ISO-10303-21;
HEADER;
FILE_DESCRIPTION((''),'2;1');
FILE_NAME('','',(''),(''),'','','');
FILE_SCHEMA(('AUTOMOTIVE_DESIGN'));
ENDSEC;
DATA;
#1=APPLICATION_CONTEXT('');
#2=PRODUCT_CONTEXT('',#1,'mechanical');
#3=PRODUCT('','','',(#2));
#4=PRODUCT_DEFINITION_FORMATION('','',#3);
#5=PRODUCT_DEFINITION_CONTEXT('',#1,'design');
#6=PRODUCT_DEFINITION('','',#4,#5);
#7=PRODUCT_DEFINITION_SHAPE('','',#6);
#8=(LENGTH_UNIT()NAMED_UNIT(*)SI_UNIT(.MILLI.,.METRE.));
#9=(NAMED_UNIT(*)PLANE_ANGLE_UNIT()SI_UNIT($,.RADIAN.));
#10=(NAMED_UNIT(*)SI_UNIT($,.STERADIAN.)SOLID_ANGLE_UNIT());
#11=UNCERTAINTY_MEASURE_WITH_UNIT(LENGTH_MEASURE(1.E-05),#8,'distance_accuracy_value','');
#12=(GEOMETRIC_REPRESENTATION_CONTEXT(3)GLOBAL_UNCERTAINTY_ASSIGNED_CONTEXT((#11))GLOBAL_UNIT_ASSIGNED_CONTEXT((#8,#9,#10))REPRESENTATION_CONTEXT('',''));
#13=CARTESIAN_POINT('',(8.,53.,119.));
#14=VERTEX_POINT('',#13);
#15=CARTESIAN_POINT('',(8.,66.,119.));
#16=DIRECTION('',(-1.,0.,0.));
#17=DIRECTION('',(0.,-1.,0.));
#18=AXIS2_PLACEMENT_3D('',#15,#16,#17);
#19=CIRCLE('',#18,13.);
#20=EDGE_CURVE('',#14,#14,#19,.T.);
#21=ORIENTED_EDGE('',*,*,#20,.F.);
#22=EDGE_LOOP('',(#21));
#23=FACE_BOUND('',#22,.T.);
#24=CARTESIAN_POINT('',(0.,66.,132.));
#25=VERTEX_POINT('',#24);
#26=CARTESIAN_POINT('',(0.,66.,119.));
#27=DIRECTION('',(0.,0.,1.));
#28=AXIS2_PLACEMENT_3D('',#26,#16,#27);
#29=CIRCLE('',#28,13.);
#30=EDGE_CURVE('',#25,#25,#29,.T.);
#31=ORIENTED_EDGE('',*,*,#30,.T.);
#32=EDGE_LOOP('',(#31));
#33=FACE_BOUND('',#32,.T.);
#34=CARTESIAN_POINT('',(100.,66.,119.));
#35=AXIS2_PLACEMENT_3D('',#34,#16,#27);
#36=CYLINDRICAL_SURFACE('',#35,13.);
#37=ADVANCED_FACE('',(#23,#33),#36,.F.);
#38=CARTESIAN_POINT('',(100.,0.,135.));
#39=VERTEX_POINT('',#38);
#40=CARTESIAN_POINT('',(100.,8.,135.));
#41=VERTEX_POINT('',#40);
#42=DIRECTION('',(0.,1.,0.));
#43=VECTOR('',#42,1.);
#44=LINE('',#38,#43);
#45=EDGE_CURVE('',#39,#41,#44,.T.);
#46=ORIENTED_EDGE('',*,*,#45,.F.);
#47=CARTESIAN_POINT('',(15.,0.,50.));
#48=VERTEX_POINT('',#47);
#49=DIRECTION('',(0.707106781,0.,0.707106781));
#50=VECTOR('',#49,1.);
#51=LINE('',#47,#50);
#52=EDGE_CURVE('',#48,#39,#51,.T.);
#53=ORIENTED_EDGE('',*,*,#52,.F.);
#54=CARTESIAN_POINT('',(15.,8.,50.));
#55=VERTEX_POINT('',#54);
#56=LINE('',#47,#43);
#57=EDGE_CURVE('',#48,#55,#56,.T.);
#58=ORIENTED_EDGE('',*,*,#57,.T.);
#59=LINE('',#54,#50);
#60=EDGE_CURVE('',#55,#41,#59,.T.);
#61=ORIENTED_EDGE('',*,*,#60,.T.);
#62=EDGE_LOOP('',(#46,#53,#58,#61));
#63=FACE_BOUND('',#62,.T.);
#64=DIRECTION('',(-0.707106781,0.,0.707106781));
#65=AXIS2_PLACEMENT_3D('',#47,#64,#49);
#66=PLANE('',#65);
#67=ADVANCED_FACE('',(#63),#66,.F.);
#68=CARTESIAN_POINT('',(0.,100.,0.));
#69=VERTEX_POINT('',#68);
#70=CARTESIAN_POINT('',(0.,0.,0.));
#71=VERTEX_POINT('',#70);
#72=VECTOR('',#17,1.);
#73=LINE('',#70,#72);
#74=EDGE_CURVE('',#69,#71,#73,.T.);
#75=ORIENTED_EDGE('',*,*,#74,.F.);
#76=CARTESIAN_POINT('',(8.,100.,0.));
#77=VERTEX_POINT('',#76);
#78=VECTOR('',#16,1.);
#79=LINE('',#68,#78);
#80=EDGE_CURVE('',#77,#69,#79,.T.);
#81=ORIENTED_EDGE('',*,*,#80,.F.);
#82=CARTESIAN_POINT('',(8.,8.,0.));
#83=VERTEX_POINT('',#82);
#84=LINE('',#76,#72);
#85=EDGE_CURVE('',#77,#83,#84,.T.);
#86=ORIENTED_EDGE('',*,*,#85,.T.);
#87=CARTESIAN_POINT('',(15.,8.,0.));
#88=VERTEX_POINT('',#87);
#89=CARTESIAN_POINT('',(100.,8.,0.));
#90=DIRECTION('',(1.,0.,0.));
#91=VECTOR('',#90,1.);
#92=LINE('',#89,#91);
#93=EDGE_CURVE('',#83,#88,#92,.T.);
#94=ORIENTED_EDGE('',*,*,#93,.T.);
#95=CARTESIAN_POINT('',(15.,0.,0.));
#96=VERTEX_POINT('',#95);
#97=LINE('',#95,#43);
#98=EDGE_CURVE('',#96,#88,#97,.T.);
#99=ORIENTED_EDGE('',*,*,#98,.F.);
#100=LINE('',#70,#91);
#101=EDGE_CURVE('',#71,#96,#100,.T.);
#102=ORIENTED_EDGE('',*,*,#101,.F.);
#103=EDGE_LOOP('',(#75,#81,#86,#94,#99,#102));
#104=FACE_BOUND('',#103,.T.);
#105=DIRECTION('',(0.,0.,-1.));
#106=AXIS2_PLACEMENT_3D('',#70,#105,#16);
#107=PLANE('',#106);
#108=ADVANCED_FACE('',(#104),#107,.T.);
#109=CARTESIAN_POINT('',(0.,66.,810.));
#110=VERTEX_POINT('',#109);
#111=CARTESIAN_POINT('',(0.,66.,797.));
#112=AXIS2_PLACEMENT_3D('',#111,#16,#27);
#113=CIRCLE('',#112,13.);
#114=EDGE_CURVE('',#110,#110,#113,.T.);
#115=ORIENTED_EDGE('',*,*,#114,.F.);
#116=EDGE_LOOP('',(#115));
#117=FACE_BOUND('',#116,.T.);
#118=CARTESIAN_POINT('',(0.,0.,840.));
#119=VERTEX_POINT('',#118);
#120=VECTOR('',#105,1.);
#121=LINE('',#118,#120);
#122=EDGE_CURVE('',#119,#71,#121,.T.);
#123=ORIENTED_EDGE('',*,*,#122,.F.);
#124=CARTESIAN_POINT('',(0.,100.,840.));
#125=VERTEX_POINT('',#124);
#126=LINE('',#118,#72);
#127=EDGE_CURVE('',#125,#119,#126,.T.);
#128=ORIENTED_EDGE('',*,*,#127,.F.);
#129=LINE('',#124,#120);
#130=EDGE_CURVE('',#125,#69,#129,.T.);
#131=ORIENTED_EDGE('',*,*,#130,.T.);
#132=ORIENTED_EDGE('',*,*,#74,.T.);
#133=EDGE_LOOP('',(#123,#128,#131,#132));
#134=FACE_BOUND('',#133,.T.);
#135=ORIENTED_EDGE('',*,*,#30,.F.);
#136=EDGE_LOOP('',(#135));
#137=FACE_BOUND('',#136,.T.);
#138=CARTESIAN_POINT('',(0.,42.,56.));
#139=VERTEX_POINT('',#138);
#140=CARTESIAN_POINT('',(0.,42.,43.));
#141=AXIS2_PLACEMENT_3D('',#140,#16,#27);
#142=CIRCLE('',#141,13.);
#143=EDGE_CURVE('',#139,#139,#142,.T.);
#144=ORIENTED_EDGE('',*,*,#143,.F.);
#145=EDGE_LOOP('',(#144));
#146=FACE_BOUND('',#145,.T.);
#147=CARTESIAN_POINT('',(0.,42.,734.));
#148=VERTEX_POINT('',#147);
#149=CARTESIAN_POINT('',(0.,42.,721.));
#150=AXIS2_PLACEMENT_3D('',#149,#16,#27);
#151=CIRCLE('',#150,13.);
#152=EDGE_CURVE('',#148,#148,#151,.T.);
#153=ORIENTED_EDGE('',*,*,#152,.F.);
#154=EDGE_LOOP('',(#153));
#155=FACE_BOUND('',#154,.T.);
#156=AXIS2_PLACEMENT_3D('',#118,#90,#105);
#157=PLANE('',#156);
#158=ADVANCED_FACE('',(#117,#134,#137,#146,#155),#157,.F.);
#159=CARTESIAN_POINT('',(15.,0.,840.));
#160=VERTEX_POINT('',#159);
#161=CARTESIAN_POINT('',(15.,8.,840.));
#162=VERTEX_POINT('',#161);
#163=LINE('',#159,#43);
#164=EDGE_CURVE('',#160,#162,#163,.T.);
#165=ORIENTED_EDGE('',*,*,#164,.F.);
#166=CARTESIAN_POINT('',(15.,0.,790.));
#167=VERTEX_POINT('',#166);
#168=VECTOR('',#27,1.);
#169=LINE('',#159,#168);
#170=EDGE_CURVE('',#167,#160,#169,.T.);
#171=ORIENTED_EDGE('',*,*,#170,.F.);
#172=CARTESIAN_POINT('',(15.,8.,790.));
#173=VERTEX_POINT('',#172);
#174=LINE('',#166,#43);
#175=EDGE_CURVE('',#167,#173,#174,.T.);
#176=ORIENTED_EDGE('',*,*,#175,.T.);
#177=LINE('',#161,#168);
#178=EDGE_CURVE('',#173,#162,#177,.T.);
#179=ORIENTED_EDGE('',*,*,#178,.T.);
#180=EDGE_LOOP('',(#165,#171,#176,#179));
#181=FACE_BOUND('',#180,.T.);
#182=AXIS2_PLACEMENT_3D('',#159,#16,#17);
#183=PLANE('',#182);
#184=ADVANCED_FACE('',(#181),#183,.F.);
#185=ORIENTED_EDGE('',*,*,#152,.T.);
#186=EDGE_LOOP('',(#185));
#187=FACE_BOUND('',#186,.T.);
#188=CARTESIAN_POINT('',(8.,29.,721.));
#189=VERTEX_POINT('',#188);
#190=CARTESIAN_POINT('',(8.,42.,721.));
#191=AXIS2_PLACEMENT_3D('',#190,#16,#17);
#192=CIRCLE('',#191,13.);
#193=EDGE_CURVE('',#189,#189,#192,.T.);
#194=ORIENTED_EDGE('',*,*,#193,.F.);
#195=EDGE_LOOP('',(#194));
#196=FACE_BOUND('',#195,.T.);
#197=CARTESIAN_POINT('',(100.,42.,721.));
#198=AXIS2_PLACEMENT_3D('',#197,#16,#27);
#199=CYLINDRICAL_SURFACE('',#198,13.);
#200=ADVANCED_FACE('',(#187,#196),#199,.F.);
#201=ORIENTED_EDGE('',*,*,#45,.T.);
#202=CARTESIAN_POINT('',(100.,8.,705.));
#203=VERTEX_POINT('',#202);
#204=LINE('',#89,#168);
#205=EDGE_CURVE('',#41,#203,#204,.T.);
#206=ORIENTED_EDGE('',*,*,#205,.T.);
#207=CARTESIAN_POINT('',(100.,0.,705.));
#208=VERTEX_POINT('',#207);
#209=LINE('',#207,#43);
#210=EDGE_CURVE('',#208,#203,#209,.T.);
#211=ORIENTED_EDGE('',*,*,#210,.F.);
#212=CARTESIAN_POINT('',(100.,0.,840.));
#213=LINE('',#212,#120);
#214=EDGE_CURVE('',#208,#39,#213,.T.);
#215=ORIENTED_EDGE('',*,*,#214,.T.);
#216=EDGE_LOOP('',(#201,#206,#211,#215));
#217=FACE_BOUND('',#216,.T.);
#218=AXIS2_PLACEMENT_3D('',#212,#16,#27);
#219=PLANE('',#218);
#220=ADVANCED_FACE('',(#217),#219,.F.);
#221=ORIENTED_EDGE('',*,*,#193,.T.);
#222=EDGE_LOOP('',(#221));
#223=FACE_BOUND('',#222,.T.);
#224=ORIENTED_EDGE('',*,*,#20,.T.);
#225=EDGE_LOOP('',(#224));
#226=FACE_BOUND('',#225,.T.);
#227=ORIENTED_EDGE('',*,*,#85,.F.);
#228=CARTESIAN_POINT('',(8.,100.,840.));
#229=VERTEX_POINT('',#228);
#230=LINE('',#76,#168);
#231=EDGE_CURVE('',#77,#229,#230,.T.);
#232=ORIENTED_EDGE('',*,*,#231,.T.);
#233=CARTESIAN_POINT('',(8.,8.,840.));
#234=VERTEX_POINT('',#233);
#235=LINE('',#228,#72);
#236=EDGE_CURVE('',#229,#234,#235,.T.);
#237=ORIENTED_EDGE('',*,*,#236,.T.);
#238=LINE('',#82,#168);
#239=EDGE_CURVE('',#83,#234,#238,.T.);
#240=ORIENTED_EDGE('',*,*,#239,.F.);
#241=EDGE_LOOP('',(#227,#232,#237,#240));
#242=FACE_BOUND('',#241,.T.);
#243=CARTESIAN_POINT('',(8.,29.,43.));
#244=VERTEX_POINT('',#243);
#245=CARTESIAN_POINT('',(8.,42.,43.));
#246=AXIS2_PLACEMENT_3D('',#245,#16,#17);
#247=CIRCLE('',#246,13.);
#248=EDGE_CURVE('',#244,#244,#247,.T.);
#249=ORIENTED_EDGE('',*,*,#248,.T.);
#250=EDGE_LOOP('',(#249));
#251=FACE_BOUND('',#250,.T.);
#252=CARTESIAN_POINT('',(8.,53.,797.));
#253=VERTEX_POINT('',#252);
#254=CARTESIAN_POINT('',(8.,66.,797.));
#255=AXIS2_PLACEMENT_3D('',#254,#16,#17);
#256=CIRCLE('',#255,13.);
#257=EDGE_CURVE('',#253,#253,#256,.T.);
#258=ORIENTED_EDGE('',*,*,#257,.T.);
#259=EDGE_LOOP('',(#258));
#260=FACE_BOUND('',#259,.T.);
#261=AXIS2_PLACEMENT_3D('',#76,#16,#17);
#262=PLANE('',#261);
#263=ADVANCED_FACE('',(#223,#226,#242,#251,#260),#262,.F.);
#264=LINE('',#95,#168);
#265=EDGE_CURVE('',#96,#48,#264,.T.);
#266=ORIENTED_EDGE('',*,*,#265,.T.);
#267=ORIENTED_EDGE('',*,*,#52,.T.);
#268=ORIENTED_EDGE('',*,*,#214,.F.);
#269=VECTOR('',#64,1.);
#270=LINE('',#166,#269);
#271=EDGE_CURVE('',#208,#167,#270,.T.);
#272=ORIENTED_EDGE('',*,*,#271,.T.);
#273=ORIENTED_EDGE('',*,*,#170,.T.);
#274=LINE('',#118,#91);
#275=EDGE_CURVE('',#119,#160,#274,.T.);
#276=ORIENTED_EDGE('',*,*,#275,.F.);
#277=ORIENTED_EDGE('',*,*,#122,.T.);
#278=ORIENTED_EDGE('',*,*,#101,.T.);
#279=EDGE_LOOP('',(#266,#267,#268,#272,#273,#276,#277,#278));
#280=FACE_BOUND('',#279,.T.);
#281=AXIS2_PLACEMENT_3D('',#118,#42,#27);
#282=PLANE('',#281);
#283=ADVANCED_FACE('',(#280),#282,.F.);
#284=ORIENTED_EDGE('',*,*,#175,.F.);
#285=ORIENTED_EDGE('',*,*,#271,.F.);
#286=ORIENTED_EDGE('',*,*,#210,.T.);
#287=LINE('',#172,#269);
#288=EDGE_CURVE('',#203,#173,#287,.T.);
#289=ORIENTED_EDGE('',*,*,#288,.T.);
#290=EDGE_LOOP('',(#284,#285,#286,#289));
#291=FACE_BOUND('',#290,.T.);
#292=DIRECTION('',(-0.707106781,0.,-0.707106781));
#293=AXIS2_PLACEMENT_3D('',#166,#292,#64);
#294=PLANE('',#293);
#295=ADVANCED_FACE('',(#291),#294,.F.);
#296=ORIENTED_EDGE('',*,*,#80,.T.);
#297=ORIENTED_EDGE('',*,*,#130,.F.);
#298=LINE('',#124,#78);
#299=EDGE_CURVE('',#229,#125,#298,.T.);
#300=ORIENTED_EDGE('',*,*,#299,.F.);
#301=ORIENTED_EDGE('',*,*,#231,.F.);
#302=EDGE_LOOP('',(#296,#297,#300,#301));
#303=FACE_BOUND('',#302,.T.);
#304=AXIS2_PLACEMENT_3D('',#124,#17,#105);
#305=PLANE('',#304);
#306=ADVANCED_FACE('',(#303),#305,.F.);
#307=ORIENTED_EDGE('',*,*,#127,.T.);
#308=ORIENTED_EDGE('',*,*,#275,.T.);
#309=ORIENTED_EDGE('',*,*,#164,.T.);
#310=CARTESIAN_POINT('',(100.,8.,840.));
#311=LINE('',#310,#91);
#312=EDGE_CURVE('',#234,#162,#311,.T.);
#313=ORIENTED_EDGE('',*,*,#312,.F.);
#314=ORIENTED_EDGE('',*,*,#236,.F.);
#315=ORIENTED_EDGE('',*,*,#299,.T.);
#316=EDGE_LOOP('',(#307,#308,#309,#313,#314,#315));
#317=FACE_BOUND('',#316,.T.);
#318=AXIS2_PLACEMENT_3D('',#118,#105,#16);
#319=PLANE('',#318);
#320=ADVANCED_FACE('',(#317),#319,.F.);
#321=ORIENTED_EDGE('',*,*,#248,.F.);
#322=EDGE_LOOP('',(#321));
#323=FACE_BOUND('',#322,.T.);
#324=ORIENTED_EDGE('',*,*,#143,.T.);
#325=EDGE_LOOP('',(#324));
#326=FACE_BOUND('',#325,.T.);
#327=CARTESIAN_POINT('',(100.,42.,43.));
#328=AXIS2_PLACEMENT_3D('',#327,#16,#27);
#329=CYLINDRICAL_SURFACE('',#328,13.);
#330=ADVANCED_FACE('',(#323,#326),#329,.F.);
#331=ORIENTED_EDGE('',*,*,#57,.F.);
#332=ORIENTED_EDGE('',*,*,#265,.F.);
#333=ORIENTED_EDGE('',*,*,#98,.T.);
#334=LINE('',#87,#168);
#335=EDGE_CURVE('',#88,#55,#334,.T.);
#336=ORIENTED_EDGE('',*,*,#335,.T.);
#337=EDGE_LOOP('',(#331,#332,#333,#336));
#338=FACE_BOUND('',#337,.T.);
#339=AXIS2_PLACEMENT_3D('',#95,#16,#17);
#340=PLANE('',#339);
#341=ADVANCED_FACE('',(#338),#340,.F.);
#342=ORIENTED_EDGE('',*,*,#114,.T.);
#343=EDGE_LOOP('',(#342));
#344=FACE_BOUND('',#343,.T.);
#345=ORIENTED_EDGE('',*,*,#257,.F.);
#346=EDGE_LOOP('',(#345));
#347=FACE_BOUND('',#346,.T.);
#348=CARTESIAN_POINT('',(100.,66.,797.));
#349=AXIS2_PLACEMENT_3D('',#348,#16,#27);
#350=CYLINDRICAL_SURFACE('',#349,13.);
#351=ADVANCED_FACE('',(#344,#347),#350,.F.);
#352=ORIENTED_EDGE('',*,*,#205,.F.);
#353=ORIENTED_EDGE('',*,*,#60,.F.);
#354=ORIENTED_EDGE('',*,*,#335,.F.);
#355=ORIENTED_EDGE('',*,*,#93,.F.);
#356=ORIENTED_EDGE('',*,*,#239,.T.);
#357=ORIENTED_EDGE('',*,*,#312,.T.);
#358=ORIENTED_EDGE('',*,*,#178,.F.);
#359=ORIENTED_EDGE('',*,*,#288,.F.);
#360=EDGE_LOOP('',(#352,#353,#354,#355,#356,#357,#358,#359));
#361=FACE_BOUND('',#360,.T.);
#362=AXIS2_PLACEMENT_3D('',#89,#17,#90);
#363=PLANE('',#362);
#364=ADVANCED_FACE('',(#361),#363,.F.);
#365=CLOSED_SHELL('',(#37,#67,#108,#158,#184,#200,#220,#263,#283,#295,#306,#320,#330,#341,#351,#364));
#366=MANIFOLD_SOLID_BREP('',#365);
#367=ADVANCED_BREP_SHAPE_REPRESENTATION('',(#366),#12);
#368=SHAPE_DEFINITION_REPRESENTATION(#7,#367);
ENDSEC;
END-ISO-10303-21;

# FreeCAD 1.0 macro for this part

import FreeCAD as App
import Part
import Sketcher
from FreeCAD import Vector
Q = App.Units.Quantity

doc = App.newDocument("Part")
body = doc.addObject("PartDesign::Body", "Body")

# Sketch on XY plane
sketch1 = body.newObject("Sketcher::SketchObject", "Sketch")
sketch1.AttachmentSupport = (doc.getObject("XY_Plane"), [""])
sketch1.MapMode = "FlatFace"
sketch1.addGeometry(Part.LineSegment(Vector(0, 100, 0), Vector(0, 0, 0)), False)
sketch1.addGeometry(Part.LineSegment(Vector(0, 0, 0), Vector(100, 0, 0)), False)
sketch1.addGeometry(Part.LineSegment(Vector(100, 0, 0), Vector(100, 100, 0)), False)
sketch1.addGeometry(Part.LineSegment(Vector(100, 100, 0), Vector(0, 100, 0)), False)
sketch1.addConstraint(Sketcher.Constraint("Coincident", 0, 2, 1, 1))
sketch1.addConstraint(Sketcher.Constraint("Coincident", 1, 2, 2, 1))
sketch1.addConstraint(Sketcher.Constraint("Coincident", 2, 2, 3, 1))
sketch1.addConstraint(Sketcher.Constraint("Coincident", 3, 2, 0, 1))
sketch1.addConstraint(Sketcher.Constraint("Vertical", 0))
sketch1.addConstraint(Sketcher.Constraint("Horizontal", 1))
sketch1.addConstraint(Sketcher.Constraint("Vertical", 2))
sketch1.addConstraint(Sketcher.Constraint("Horizontal", 3))
sketch1.addConstraint(Sketcher.Constraint("Coincident", 0, 2, -1, 1))
sketch1.addConstraint(Sketcher.Constraint("Equal", 3, 0))
sketch1.addConstraint(Sketcher.Constraint("DistanceX", 1, 1, 1, 2, Q("100 mm")))
pad1 = body.newObject("PartDesign::Pad", "Pad")
pad1.Profile = sketch1
pad1.Length = 840

# Sketch on XY plane
sketch2 = body.newObject("Sketcher::SketchObject", "Sketch001")
sketch2.AttachmentSupport = (doc.getObject("XY_Plane"), [""])
sketch2.MapMode = "FlatFace"
sketch2.AttachmentOffset = App.Placement(Vector(0, 0, 840), App.Rotation())
sketch2.addGeometry(Part.LineSegment(Vector(8, 100, 0), Vector(8, 8, 0)), False)
sketch2.addGeometry(Part.LineSegment(Vector(8, 8, 0), Vector(100, 8, 0)), False)
sketch2.addGeometry(Part.LineSegment(Vector(100, 8, 0), Vector(100, 100, 0)), False)
sketch2.addGeometry(Part.LineSegment(Vector(100, 100, 0), Vector(8, 100, 0)), False)
sketch2.addConstraint(Sketcher.Constraint("Coincident", 0, 2, 1, 1))
sketch2.addConstraint(Sketcher.Constraint("Coincident", 1, 2, 2, 1))
sketch2.addConstraint(Sketcher.Constraint("Coincident", 2, 2, 3, 1))
sketch2.addConstraint(Sketcher.Constraint("Coincident", 3, 2, 0, 1))
sketch2.addConstraint(Sketcher.Constraint("Vertical", 0))
sketch2.addConstraint(Sketcher.Constraint("Horizontal", 1))
sketch2.addConstraint(Sketcher.Constraint("Vertical", 2))
sketch2.addConstraint(Sketcher.Constraint("Horizontal", 3))
sketch2.addConstraint(Sketcher.Constraint("Equal", 3, 0))
sketch2.addConstraint(Sketcher.Constraint("DistanceX", 1, 1, 1, 2, Q("92 mm")))
sketch2.addConstraint(Sketcher.Constraint("DistanceX", -1, 1, 0, 2, Q("8 mm")))
sketch2.addConstraint(Sketcher.Constraint("DistanceY", -1, 1, 0, 2, Q("8 mm")))
pocket1 = body.newObject("PartDesign::Pocket", "Pocket")
pocket1.Profile = sketch2
pocket1.Type = "ThroughAll"

# Sketch on YZ plane
sketch3 = body.newObject("Sketcher::SketchObject", "Sketch002")
sketch3.AttachmentSupport = (doc.getObject("YZ_Plane"), [""])
sketch3.MapMode = "FlatFace"
sketch3.addGeometry(Part.Circle(Vector(42, 43, 0), Vector(0, 0, 1), 13), False)
sketch3.addGeometry(Part.Circle(Vector(66, 119, 0), Vector(0, 0, 1), 13), False)
sketch3.addGeometry(Part.Circle(Vector(66, 797, 0), Vector(0, 0, 1), 13), False)
sketch3.addGeometry(Part.Circle(Vector(42, 721, 0), Vector(0, 0, 1), 13), False)
sketch3.addConstraint(Sketcher.Constraint("Equal", 0, 1))
sketch3.addConstraint(Sketcher.Constraint("Equal", 1, 2))
sketch3.addConstraint(Sketcher.Constraint("Equal", 2, 3))
sketch3.addConstraint(Sketcher.Constraint("Vertical", 1, 3, 2, 3))
sketch3.addConstraint(Sketcher.Constraint("Vertical", 0, 3, 3, 3))
sketch3.addConstraint(Sketcher.Constraint("Diameter", 0, Q("26 mm")))
sketch3.addConstraint(Sketcher.Constraint("DistanceX", -1, 1, 0, 3, Q("42 mm")))
sketch3.addConstraint(Sketcher.Constraint("DistanceY", -1, 1, 0, 3, Q("43 mm")))
sketch3.addConstraint(Sketcher.Constraint("DistanceX", -1, 1, 1, 3, Q("66 mm")))
sketch3.addConstraint(Sketcher.Constraint("DistanceY", -1, 1, 1, 3, Q("119 mm")))
sketch3.addConstraint(Sketcher.Constraint("DistanceY", -1, 1, 2, 3, Q("797 mm")))
sketch3.addConstraint(Sketcher.Constraint("DistanceY", -1, 1, 3, 3, Q("721 mm")))
pocket2 = body.newObject("PartDesign::Pocket", "Pocket001")
pocket2.Profile = sketch3
pocket2.Type = "ThroughAll"
pocket2.Reversed = True

# Sketch on XZ plane
sketch4 = body.newObject("Sketcher::SketchObject", "Sketch003")
sketch4.AttachmentSupport = (doc.getObject("XZ_Plane"), [""])
sketch4.MapMode = "FlatFace"
sketch4.AttachmentOffset = App.Placement(Vector(0, 0, -8), App.Rotation())
sketch4.addGeometry(Part.LineSegment(Vector(15, 0, 0), Vector(15, 50, 0)), False)
sketch4.addGeometry(Part.LineSegment(Vector(15, 50, 0), Vector(100, 135, 0)), False)
sketch4.addGeometry(Part.LineSegment(Vector(100, 135, 0), Vector(100, 0, 0)), False)
sketch4.addGeometry(Part.LineSegment(Vector(100, 0, 0), Vector(15, 0, 0)), False)
sketch4.addGeometry(Part.LineSegment(Vector(15, 790, 0), Vector(15, 840, 0)), False)
sketch4.addGeometry(Part.LineSegment(Vector(15, 840, 0), Vector(100, 840, 0)), False)
sketch4.addGeometry(Part.LineSegment(Vector(100, 840, 0), Vector(100, 705, 0)), False)
sketch4.addGeometry(Part.LineSegment(Vector(100, 705, 0), Vector(15, 790, 0)), False)
sketch4.addConstraint(Sketcher.Constraint("Coincident", 0, 2, 1, 1))
sketch4.addConstraint(Sketcher.Constraint("Coincident", 1, 2, 2, 1))
sketch4.addConstraint(Sketcher.Constraint("Coincident", 2, 2, 3, 1))
sketch4.addConstraint(Sketcher.Constraint("Coincident", 3, 2, 0, 1))
sketch4.addConstraint(Sketcher.Constraint("Coincident", 4, 2, 5, 1))
sketch4.addConstraint(Sketcher.Constraint("Coincident", 5, 2, 6, 1))
sketch4.addConstraint(Sketcher.Constraint("Coincident", 6, 2, 7, 1))
sketch4.addConstraint(Sketcher.Constraint("Coincident", 7, 2, 4, 1))
sketch4.addConstraint(Sketcher.Constraint("Vertical", 0))
sketch4.addConstraint(Sketcher.Constraint("Vertical", 2))
sketch4.addConstraint(Sketcher.Constraint("Horizontal", 3))
sketch4.addConstraint(Sketcher.Constraint("Vertical", 4))
sketch4.addConstraint(Sketcher.Constraint("Horizontal", 5))
sketch4.addConstraint(Sketcher.Constraint("Vertical", 6))
sketch4.addConstraint(Sketcher.Constraint("PointOnObject", 2, 2, -1))
sketch4.addConstraint(Sketcher.Constraint("Perpendicular", 1, 7))
sketch4.addConstraint(Sketcher.Constraint("Vertical", 3, 2, 4, 2))
sketch4.addConstraint(Sketcher.Constraint("Vertical", 2, 2, 5, 2))
sketch4.addConstraint(Sketcher.Constraint("Equal", 0, 4))
sketch4.addConstraint(Sketcher.Constraint("Equal", 2, 6))
sketch4.addConstraint(Sketcher.Constraint("DistanceX", 3, 2, 3, 1, Q("85 mm")))
sketch4.addConstraint(Sketcher.Constraint("DistanceY", 0, 1, 0, 2, Q("50 mm")))
sketch4.addConstraint(Sketcher.Constraint("DistanceX", -1, 1, 0, 2, Q("15 mm")))
sketch4.addConstraint(Sketcher.Constraint("DistanceY", -1, 1, 4, 2, Q("840 mm")))
pocket3 = body.newObject("PartDesign::Pocket", "Pocket002")
pocket3.Profile = sketch4
pocket3.Type = "ThroughAll"
pocket3.Reversed = True

doc.recompute()
